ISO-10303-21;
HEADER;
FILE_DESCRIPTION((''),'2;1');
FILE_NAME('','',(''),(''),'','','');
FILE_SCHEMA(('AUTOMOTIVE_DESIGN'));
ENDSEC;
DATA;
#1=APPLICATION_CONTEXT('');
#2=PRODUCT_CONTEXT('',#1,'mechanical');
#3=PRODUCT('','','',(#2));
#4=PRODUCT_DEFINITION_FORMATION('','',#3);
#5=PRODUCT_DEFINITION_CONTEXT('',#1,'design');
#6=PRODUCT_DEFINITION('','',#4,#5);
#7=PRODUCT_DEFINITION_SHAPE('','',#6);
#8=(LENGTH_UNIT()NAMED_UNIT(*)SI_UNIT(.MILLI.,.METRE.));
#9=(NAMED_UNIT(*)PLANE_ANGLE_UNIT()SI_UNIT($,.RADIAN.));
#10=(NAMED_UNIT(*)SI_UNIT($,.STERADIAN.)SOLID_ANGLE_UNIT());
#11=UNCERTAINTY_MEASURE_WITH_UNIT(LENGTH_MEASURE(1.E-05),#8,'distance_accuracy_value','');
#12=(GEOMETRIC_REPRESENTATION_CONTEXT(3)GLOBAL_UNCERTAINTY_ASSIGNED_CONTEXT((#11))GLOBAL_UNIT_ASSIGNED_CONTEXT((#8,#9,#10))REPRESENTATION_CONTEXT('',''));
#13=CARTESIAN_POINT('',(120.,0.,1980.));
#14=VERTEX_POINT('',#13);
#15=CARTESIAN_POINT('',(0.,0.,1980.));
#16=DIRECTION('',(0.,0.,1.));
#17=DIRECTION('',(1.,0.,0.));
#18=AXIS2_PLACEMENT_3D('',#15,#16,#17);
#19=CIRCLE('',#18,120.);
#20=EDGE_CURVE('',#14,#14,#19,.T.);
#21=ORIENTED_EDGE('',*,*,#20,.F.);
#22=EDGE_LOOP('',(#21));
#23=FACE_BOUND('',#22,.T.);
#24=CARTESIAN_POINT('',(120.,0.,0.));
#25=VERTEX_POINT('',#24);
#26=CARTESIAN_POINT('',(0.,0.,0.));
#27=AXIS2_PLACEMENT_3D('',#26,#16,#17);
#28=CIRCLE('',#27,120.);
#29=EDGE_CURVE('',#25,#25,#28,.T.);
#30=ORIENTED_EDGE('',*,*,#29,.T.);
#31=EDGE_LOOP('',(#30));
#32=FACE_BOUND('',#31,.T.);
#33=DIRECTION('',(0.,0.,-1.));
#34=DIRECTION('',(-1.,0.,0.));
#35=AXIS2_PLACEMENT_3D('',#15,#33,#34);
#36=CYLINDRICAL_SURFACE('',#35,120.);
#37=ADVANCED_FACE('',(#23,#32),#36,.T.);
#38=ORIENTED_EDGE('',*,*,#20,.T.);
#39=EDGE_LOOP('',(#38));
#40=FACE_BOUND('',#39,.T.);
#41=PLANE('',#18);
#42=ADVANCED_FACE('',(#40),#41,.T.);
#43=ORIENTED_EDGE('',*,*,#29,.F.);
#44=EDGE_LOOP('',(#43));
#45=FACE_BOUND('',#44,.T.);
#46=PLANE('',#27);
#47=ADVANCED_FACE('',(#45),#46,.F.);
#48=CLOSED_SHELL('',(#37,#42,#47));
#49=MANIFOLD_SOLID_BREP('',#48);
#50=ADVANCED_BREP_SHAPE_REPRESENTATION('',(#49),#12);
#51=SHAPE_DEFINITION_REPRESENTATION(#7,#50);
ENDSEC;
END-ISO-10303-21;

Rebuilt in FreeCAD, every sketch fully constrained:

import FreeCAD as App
import Part
import Sketcher
from FreeCAD import Vector

doc = App.newDocument("Part")
params = doc.addObject("Spreadsheet::Sheet", "Params")
for row, (alias, value) in enumerate([
    ("sketch1_diameter", "240 mm"),
    ("pad1_length", "1980 mm"),
], start=1):
    params.set(f"A{row}", alias)
    params.set(f"B{row}", "=" + value)
    params.setAlias(f"B{row}", alias)

body = doc.addObject("PartDesign::Body", "Body")

# Sketch on XY plane
sketch1 = body.newObject("Sketcher::SketchObject", "Sketch")
sketch1.AttachmentSupport = (doc.getObject("XY_Plane"), [""])
sketch1.MapMode = "FlatFace"
sketch1.addGeometry(Part.Circle(Vector(0, 0, 0), Vector(0, 0, 1), 120), False)
sketch1.addConstraint([
    Sketcher.Constraint("Coincident", 0, 3, -1, 1),
    Sketcher.Constraint("Diameter", 0, 240.0),
])
sketch1.setExpression("Constraints[1]", "Params.sketch1_diameter")
pad1 = body.newObject("PartDesign::Pad", "Pad")
pad1.Profile = sketch1
pad1.setExpression("Length", "Params.pad1_length")

doc.recompute()
